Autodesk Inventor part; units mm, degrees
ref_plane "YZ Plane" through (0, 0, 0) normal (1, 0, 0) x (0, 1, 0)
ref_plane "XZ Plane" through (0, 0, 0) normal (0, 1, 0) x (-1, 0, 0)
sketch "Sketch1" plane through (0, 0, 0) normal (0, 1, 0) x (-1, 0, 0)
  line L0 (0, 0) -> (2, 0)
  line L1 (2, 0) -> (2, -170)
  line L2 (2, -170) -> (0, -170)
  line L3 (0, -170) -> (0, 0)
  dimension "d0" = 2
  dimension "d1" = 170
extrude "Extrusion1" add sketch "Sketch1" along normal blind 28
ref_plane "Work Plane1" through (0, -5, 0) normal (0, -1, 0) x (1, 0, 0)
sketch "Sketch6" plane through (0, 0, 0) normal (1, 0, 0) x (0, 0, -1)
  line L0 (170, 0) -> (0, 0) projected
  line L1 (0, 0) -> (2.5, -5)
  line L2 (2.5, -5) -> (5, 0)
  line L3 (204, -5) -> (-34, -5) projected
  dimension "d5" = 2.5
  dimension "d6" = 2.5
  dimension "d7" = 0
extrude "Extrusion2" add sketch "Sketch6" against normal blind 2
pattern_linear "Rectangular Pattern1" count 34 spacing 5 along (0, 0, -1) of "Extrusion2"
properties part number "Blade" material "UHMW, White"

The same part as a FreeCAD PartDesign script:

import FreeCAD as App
import Part
import Sketcher
from FreeCAD import Vector

doc = App.newDocument("Part")
body = doc.addObject("PartDesign::Body", "Body")

# Sketch on XZ plane
sketch1 = doc.addObject("Sketcher::SketchObject", "Sketch")
body.addObject(sketch1)
sketch1.AttachmentSupport = (doc.XZ_Plane, [""])
sketch1.MapMode = "FlatFace"
sketch1.addGeometry([
    Part.LineSegment(Vector(-2, 0, 0), Vector(0, 0, 0)),
    Part.LineSegment(Vector(0, 0, 0), Vector(0, -170, 0)),
    Part.LineSegment(Vector(0, -170, 0), Vector(-2, -170, 0)),
    Part.LineSegment(Vector(-2, -170, 0), Vector(-2, 0, 0)),
], False)
sketch1.addConstraint([
    Sketcher.Constraint("Coincident", 0, 2, 1, 1),
    Sketcher.Constraint("Coincident", 1, 2, 2, 1),
    Sketcher.Constraint("Coincident", 2, 2, 3, 1),
    Sketcher.Constraint("Coincident", 3, 2, 0, 1),
    Sketcher.Constraint("Horizontal", 0),
    Sketcher.Constraint("Vertical", 1),
    Sketcher.Constraint("Horizontal", 2),
    Sketcher.Constraint("Vertical", 3),
    Sketcher.Constraint("Coincident", 0, 2, -1, 1),
    Sketcher.Constraint("DistanceX", 0, 1, 0, 2, 2.0),
    Sketcher.Constraint("DistanceY", 1, 2, 1, 1, 170.0),
])
pad1 = doc.addObject("PartDesign::Pad", "Pad")
body.addObject(pad1)
pad1.Profile = sketch1
pad1.Length = 28
pad1.Reversed = True

# Sketch on YZ plane
sketch2 = doc.addObject("Sketcher::SketchObject", "Sketch001")
body.addObject(sketch2)
sketch2.AttachmentSupport = (doc.YZ_Plane, [""])
sketch2.MapMode = "FlatFace"
sketch2.addGeometry([
    Part.LineSegment(Vector(-5, -2, 0), Vector(0, -5, 0)),
    Part.LineSegment(Vector(0, -5, 0), Vector(0, 0, 0)),
    Part.LineSegment(Vector(0, 0, 0), Vector(-5, -2, 0)),
], False)
sketch2.addConstraint([
    Sketcher.Constraint("Coincident", 0, 2, 1, 1),
    Sketcher.Constraint("Coincident", 1, 2, 2, 1),
    Sketcher.Constraint("Coincident", 2, 2, 0, 1),
    Sketcher.Constraint("Vertical", 1),
    Sketcher.Constraint("Coincident", 1, 2, -1, 1),
    Sketcher.Constraint("Equal", 0, 2),
    Sketcher.Constraint("DistanceY", 2, 2, -1, 1, 2.5),
    Sketcher.Constraint("DistanceX", 2, 2, -1, 1, 5.0),
])
pad2 = doc.addObject("PartDesign::Pad", "Pad001")
body.addObject(pad2)
pad2.Profile = sketch2
pad2.Length = 2
pad2.Reversed = True
doc.recompute()

linearpattern = doc.addObject("PartDesign::LinearPattern", "LinearPattern")
body.addObject(linearpattern)
linearpattern.Originals = [pad2]
linearpattern.Direction = (doc.Z_Axis, [""])
linearpattern.Mode = "offset"
linearpattern.Offset = 5
linearpattern.Occurrences = 34
linearpattern.Reversed = True
body.Tip = linearpattern

doc.recompute()
